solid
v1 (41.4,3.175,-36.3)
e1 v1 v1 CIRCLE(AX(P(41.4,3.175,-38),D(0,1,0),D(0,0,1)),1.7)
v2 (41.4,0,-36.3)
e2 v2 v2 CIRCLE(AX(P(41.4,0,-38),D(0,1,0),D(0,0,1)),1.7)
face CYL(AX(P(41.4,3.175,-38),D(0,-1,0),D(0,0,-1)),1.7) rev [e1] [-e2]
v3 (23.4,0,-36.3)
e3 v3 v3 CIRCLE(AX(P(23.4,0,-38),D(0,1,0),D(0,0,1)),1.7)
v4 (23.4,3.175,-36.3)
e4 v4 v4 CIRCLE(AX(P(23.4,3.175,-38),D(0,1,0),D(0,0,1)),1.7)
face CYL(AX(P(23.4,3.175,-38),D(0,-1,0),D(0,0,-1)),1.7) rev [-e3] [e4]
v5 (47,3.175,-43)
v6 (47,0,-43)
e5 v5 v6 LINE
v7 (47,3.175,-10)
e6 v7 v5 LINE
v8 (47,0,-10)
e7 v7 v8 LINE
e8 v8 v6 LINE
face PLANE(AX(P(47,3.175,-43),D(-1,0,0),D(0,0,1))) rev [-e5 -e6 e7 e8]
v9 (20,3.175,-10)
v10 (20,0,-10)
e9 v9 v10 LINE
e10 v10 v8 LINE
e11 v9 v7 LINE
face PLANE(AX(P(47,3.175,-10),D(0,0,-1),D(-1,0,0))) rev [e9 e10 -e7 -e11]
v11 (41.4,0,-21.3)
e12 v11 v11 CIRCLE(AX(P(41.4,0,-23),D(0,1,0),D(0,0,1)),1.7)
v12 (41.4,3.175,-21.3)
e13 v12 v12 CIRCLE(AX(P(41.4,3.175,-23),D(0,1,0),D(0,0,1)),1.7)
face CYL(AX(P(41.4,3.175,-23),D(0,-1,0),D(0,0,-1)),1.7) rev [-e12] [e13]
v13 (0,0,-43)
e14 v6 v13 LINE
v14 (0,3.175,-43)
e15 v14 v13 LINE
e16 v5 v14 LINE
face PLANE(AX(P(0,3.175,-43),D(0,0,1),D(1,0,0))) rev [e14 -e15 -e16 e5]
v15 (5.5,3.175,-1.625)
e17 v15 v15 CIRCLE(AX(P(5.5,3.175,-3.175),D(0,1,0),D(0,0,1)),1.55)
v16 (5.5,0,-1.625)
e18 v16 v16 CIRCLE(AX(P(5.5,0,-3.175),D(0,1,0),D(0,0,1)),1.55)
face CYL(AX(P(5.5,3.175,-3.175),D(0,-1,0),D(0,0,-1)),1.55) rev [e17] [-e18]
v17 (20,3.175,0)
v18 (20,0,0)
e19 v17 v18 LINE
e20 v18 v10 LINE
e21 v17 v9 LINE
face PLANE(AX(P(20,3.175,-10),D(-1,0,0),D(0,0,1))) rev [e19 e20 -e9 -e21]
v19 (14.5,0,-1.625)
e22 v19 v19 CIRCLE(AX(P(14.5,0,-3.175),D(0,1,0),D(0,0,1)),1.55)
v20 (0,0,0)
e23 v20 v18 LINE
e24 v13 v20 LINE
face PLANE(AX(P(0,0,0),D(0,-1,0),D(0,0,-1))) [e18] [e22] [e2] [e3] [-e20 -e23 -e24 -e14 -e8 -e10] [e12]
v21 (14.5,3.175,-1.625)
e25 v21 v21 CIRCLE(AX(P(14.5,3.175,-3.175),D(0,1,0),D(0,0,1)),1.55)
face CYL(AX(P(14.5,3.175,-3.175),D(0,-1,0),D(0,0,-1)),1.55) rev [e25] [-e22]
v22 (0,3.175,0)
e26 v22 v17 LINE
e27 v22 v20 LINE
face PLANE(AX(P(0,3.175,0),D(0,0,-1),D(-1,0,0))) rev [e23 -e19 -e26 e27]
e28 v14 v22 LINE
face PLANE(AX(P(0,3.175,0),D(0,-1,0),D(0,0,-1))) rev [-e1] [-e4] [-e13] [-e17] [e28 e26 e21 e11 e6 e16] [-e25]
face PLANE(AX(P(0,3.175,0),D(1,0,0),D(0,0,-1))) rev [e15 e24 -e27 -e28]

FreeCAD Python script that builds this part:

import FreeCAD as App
import Part
import Sketcher
from FreeCAD import Vector
Q = App.Units.Quantity

doc = App.newDocument("Part")
body = doc.addObject("PartDesign::Body", "Body")

# Sketch on XZ plane
sketch1 = body.newObject("Sketcher::SketchObject", "Sketch")
sketch1.AttachmentSupport = (doc.getObject("XZ_Plane"), [""])
sketch1.MapMode = "FlatFace"
sketch1.addGeometry([
    Part.LineSegment(Vector(0, -43, 0), Vector(0, 0, 0)),  # 0
    Part.LineSegment(Vector(0, 0, 0), Vector(20, 0, 0)),  # 1
    Part.LineSegment(Vector(20, 0, 0), Vector(20, -10, 0)),  # 2
    Part.LineSegment(Vector(20, -10, 0), Vector(47, -10, 0)),  # 3
    Part.LineSegment(Vector(47, -10, 0), Vector(47, -43, 0)),  # 4
    Part.LineSegment(Vector(47, -43, 0), Vector(0, -43, 0)),  # 5
    Part.Circle(Vector(14.5, -3.2, 0), Vector(0, 0, 1), 1.6),  # 6
    Part.Circle(Vector(5.5, -3.2, 0), Vector(0, 0, 1), 1.6),  # 7
    Part.Circle(Vector(41.4, -23, 0), Vector(0, 0, 1), 1.7),  # 8
    Part.Circle(Vector(41.4, -38, 0), Vector(0, 0, 1), 1.7),  # 9
    Part.Circle(Vector(23.4, -38, 0), Vector(0, 0, 1), 1.7),  # 10
], False)
sketch1.addConstraint([
    Sketcher.Constraint("Coincident", 0, 2, 1, 1),
    Sketcher.Constraint("Coincident", 1, 2, 2, 1),
    Sketcher.Constraint("Coincident", 2, 2, 3, 1),
    Sketcher.Constraint("Coincident", 3, 2, 4, 1),
    Sketcher.Constraint("Coincident", 4, 2, 5, 1),
    Sketcher.Constraint("Coincident", 5, 2, 0, 1),
    Sketcher.Constraint("Vertical", 0),
    Sketcher.Constraint("Horizontal", 1),
    Sketcher.Constraint("Vertical", 2),
    Sketcher.Constraint("Horizontal", 3),
    Sketcher.Constraint("Vertical", 4),
    Sketcher.Constraint("Horizontal", 5),
    Sketcher.Constraint("Coincident", 0, 2, -1, 1),
    Sketcher.Constraint("Equal", 6, 7),
    Sketcher.Constraint("Equal", 8, 9),
    Sketcher.Constraint("Equal", 9, 10),
    Sketcher.Constraint("Horizontal", 6, 3, 7, 3),
    Sketcher.Constraint("Horizontal", 9, 3, 10, 3),
    Sketcher.Constraint("Vertical", 8, 3, 9, 3),
    Sketcher.Constraint("Diameter", 6, Q("3.1 mm")),
    Sketcher.Constraint("Diameter", 8, Q("3.4 mm")),
    Sketcher.Constraint("DistanceX", 1, 1, 1, 2, Q("20 mm")),
    Sketcher.Constraint("DistanceX", 3, 1, 3, 2, Q("27 mm")),
    Sketcher.Constraint("DistanceY", 0, 1, 0, 2, Q("43 mm")),
    Sketcher.Constraint("DistanceY", 2, 2, 2, 1, Q("10 mm")),
    Sketcher.Constraint("DistanceY", 8, 3, -1, 1, Q("23 mm")),
    Sketcher.Constraint("DistanceY", 9, 3, -1, 1, Q("38 mm")),
    Sketcher.Constraint("DistanceX", 7, 3, 6, 3, Q("9 mm")),
    Sketcher.Constraint("DistanceX", 10, 3, 9, 3, Q("18 mm")),
    Sketcher.Constraint("DistanceX", -1, 1, 6, 3, Q("14.5 mm")),
    Sketcher.Constraint("DistanceX", -1, 1, 8, 3, Q("41.4 mm")),
    Sketcher.Constraint("DistanceY", 6, 3, -1, 1, Q("3.175 mm")),
])
pad1 = body.newObject("PartDesign::Pad", "Pad")
pad1.Profile = sketch1
pad1.Length = 3.175
pad1.Reversed = True

doc.recompute()
